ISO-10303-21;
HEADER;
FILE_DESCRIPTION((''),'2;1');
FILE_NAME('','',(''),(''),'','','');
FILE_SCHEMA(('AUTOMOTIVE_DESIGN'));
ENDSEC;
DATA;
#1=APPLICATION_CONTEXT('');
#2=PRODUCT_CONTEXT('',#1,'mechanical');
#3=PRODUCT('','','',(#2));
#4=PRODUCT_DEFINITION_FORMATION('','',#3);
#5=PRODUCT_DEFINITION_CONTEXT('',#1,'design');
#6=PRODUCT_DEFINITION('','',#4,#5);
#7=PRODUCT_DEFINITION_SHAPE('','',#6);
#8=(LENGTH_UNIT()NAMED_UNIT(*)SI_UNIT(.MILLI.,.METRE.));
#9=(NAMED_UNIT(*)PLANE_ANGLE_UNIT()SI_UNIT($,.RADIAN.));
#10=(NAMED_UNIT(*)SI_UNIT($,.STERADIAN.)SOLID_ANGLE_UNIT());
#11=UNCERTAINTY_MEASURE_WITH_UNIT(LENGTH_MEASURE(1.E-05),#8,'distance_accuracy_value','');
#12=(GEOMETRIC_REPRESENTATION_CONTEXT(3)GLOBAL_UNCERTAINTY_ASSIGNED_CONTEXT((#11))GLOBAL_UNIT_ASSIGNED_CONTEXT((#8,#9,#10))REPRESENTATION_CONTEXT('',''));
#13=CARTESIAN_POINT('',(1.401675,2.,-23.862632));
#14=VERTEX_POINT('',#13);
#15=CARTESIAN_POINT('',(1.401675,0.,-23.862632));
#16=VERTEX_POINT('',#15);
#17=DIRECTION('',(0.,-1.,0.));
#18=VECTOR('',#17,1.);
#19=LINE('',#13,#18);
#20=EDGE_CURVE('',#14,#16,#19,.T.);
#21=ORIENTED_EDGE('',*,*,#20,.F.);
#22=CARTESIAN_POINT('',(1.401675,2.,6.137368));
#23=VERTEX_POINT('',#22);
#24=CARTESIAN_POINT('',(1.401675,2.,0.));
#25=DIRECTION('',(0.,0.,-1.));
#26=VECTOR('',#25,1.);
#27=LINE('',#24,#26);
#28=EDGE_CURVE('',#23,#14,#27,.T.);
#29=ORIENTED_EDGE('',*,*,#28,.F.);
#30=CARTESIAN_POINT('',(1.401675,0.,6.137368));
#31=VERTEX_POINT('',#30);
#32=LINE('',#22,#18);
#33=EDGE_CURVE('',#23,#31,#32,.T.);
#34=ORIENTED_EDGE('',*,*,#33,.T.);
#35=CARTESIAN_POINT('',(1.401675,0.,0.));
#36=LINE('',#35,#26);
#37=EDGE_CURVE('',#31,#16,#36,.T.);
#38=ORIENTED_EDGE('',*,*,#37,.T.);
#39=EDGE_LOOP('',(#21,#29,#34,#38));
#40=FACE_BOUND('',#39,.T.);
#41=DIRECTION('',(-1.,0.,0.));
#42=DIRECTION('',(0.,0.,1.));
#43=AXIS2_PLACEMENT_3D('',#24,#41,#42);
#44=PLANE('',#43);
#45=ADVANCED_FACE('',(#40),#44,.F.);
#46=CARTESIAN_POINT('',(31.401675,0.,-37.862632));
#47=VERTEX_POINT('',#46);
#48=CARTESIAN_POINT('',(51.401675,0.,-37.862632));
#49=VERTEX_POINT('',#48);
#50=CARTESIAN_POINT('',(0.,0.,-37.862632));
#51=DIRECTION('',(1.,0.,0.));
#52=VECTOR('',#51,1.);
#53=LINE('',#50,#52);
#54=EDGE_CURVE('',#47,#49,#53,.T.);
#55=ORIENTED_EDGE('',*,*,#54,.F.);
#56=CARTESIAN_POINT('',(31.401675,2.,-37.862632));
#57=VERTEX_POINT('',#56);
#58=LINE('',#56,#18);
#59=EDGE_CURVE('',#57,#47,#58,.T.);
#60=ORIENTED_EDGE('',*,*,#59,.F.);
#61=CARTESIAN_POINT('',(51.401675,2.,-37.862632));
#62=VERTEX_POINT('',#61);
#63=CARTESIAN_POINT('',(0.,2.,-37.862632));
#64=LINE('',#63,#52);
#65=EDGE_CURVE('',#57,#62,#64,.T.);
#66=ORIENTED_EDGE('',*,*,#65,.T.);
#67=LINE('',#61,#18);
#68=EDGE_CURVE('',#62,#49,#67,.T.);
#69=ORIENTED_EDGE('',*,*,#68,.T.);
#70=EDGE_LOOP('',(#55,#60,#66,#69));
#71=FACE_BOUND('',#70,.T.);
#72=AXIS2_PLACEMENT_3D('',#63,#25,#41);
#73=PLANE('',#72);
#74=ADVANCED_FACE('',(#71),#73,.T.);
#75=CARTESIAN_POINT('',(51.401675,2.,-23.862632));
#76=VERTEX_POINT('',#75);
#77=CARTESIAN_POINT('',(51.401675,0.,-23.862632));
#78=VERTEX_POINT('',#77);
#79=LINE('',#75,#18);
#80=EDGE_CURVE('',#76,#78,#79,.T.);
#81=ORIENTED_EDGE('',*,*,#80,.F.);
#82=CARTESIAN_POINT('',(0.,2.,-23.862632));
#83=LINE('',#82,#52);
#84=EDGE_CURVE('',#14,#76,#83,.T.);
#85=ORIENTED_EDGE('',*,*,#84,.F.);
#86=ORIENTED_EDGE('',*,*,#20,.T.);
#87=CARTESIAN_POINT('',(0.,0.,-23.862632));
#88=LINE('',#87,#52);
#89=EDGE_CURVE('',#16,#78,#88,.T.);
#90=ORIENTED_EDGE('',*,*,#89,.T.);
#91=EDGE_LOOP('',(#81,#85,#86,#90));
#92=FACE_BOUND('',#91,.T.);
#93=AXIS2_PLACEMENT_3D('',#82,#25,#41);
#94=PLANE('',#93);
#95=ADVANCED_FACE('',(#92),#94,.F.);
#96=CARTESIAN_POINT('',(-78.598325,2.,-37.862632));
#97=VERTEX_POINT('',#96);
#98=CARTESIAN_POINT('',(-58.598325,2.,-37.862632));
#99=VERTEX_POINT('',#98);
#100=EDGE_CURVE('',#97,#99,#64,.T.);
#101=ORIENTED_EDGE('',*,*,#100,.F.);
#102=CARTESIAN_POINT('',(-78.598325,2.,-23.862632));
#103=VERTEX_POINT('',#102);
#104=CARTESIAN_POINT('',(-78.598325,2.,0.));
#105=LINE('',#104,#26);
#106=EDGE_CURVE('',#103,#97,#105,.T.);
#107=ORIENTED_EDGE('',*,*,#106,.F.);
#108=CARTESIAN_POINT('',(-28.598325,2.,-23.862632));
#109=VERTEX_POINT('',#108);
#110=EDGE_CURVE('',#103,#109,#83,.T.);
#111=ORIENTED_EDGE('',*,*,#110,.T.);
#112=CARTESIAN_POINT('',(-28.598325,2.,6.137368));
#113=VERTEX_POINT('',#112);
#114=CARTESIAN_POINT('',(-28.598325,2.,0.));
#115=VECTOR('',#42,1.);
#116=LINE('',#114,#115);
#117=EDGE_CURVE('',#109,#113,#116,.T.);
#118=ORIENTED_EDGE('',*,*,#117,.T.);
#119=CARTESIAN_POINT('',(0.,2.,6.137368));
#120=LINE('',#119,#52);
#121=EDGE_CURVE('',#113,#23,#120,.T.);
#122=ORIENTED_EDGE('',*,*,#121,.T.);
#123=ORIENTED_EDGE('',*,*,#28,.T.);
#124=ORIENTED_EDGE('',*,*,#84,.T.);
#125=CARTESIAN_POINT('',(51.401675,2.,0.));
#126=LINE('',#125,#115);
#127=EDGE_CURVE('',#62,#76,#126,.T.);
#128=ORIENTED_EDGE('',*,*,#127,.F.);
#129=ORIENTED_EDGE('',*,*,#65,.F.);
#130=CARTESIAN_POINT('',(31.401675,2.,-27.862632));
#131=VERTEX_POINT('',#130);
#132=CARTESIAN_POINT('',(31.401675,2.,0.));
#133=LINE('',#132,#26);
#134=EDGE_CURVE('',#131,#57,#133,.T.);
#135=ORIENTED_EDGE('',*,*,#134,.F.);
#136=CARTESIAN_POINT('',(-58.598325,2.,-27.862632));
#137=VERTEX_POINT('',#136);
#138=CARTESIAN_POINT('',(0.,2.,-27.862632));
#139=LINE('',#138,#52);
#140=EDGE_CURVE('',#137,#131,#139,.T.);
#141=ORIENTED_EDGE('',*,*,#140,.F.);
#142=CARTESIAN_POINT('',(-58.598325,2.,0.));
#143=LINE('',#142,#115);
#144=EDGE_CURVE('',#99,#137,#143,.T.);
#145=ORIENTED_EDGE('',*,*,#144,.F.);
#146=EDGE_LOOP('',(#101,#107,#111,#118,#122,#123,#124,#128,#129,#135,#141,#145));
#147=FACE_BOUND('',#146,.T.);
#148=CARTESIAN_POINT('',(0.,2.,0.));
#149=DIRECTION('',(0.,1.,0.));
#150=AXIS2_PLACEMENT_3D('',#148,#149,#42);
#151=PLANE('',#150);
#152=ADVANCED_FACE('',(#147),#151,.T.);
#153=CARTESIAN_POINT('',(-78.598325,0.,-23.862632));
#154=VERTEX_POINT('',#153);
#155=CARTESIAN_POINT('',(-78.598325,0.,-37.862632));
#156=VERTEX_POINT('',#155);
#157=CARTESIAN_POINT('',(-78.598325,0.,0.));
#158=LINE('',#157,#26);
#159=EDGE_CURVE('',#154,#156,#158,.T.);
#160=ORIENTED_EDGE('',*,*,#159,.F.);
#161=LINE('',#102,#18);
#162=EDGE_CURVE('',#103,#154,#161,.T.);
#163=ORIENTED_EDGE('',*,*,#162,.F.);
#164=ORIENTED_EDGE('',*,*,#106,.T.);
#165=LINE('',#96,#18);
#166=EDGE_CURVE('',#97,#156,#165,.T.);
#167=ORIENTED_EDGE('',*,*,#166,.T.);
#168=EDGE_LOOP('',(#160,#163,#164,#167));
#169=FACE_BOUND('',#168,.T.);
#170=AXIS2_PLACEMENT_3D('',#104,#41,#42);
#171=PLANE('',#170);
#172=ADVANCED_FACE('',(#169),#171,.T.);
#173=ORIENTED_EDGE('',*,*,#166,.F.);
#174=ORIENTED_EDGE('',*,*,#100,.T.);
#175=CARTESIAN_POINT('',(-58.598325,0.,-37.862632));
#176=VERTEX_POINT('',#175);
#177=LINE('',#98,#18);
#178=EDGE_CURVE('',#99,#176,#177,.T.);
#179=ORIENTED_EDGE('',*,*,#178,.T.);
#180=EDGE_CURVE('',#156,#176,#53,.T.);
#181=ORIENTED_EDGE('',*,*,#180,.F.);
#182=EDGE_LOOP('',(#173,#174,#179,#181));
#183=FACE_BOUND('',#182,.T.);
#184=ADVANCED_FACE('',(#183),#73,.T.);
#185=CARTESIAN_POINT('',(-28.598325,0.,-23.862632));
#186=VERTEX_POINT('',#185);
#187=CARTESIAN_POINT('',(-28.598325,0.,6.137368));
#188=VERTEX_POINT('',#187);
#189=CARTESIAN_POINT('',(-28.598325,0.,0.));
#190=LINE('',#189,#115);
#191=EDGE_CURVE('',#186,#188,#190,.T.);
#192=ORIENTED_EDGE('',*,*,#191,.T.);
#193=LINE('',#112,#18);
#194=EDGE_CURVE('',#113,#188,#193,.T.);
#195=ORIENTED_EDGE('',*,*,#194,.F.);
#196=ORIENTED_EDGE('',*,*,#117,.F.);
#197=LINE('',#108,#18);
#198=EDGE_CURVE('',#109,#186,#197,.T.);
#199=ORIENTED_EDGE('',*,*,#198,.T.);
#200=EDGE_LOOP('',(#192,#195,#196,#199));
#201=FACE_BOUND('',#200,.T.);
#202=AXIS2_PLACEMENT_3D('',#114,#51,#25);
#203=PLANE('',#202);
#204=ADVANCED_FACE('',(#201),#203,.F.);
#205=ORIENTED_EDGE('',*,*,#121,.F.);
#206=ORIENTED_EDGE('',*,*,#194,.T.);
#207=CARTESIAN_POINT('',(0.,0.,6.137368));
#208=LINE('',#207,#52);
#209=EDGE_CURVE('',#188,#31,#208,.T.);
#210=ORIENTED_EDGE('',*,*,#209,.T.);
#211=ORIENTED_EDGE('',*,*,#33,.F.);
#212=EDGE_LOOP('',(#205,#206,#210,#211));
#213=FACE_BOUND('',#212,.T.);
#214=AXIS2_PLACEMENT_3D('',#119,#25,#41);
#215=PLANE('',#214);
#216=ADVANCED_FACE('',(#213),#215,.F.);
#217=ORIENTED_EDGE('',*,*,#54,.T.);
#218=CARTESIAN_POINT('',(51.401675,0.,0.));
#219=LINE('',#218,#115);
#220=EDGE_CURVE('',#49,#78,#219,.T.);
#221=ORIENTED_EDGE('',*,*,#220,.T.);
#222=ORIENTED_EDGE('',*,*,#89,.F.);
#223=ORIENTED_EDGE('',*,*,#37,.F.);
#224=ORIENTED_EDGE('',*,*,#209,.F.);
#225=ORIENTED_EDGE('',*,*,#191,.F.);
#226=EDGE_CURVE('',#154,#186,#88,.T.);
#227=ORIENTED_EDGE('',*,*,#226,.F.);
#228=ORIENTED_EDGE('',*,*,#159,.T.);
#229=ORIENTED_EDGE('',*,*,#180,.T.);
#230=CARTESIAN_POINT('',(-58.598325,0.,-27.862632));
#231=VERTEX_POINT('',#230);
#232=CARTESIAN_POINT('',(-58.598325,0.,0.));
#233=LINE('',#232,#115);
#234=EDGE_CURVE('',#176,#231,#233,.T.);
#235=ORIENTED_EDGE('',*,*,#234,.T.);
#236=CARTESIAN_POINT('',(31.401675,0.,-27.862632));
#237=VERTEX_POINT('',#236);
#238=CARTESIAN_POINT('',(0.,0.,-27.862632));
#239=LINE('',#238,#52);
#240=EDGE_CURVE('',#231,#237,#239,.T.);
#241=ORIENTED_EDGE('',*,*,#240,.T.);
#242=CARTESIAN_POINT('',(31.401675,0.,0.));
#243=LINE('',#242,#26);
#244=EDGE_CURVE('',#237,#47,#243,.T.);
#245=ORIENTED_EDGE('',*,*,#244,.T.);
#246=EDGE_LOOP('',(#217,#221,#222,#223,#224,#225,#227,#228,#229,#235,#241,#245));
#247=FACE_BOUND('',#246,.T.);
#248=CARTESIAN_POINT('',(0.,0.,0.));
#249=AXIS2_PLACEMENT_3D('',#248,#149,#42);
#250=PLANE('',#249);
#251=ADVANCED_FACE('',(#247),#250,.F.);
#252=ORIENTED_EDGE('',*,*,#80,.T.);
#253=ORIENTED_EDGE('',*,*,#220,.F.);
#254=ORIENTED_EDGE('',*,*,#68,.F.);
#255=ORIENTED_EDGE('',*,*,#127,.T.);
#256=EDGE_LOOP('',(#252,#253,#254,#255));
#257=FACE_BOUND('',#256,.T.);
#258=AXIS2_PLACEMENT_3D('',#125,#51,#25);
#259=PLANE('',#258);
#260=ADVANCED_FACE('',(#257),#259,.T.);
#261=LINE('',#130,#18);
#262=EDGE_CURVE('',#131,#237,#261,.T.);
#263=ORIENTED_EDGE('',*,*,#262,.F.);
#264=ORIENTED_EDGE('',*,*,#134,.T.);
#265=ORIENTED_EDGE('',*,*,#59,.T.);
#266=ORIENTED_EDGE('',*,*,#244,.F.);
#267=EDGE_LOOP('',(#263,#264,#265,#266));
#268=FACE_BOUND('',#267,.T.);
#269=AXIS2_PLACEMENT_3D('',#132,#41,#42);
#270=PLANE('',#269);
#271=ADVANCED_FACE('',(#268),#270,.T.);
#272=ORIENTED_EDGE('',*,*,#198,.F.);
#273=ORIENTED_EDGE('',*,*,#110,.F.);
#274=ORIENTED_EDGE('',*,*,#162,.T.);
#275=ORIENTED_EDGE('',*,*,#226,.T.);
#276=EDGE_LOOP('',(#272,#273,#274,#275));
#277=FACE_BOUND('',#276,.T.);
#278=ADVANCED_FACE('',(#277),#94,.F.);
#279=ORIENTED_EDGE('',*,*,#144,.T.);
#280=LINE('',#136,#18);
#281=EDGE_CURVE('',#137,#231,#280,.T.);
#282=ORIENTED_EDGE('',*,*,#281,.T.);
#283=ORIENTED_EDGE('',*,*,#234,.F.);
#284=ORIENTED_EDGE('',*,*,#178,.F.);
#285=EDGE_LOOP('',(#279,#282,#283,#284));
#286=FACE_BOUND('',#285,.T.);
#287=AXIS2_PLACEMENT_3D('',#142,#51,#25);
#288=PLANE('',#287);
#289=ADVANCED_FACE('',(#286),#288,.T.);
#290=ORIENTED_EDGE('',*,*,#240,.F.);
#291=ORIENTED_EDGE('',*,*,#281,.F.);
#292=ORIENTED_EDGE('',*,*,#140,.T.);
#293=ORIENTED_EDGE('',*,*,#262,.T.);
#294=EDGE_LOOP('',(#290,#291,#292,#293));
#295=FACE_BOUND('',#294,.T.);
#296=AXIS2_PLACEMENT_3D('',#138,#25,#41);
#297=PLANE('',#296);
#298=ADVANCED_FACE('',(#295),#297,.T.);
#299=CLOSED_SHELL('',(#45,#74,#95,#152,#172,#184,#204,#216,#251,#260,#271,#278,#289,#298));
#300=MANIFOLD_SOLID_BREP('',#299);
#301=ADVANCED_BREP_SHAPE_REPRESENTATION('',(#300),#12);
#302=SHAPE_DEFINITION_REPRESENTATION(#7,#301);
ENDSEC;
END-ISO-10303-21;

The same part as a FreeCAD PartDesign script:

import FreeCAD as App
import Part
import Sketcher

V = App.Vector


def add_polygon(sketch, points):
    """Adds a closed chain of lines whose ends are joined by coincident constraints."""
    first, n = sketch.GeometryCount, len(points)
    for a, b in zip(points, points[1:] + points[:1]):
        sketch.addGeometry(Part.LineSegment(App.Vector(*a, 0), App.Vector(*b, 0)), False)
    for i in range(n):
        sketch.addConstraint(Sketcher.Constraint("Coincident", first + i, 2, first + (i + 1) % n, 1))

doc = App.newDocument("Part")
body = doc.addObject("PartDesign::Body", "Body")

sketch1 = body.newObject("Sketcher::SketchObject", "Sketch")
sketch1.AttachmentSupport = (doc.getObject("XZ_Plane"), [""])
sketch1.MapMode = "FlatFace"
add_polygon(sketch1, [(-79, -38), (-79, -24), (-29, -24), (-29, 6), (1, 6), (1, -24), (51, -24), (51, -38), (31, -38), (31, -28), (-59, -28), (-59, -38)])
sketch1.addConstraint([
    Sketcher.Constraint("Vertical", 0),
    Sketcher.Constraint("Horizontal", 1),
    Sketcher.Constraint("Vertical", 2),
    Sketcher.Constraint("Horizontal", 3),
    Sketcher.Constraint("Vertical", 4),
    Sketcher.Constraint("Horizontal", 5),
    Sketcher.Constraint("Vertical", 6),
    Sketcher.Constraint("Horizontal", 7),
    Sketcher.Constraint("Vertical", 8),
    Sketcher.Constraint("Horizontal", 9),
    Sketcher.Constraint("Vertical", 10),
    Sketcher.Constraint("Horizontal", 11),
    Sketcher.Constraint("Horizontal", 1, 2, 4, 2),
    Sketcher.Constraint("Horizontal", 7, 2, 10, 2),
    Sketcher.Constraint("Equal", 1, 5),
    Sketcher.Constraint("Equal", 7, 11),
    Sketcher.Constraint("Equal", 3, 2),
    Sketcher.Constraint("DistanceX", 1, 1, 1, 2, 50.0),
    Sketcher.Constraint("DistanceX", 3, 1, 3, 2, 30.0),
    Sketcher.Constraint("DistanceX", 7, 2, 7, 1, 20.0),
    Sketcher.Constraint("DistanceY", 0, 1, 0, 2, 14.0),
    Sketcher.Constraint("DistanceY", 8, 1, 8, 2, 10.0),
    Sketcher.Constraint("DistanceY", 0, 2, -1, 1, 23.862632),
    Sketcher.Constraint("DistanceX", 0, 2, -1, 1, 78.598325),
])
pad1 = body.newObject("PartDesign::Pad", "Pad")
pad1.Profile = sketch1
pad1.Length = 2
pad1.Reversed = True

doc.recompute()
